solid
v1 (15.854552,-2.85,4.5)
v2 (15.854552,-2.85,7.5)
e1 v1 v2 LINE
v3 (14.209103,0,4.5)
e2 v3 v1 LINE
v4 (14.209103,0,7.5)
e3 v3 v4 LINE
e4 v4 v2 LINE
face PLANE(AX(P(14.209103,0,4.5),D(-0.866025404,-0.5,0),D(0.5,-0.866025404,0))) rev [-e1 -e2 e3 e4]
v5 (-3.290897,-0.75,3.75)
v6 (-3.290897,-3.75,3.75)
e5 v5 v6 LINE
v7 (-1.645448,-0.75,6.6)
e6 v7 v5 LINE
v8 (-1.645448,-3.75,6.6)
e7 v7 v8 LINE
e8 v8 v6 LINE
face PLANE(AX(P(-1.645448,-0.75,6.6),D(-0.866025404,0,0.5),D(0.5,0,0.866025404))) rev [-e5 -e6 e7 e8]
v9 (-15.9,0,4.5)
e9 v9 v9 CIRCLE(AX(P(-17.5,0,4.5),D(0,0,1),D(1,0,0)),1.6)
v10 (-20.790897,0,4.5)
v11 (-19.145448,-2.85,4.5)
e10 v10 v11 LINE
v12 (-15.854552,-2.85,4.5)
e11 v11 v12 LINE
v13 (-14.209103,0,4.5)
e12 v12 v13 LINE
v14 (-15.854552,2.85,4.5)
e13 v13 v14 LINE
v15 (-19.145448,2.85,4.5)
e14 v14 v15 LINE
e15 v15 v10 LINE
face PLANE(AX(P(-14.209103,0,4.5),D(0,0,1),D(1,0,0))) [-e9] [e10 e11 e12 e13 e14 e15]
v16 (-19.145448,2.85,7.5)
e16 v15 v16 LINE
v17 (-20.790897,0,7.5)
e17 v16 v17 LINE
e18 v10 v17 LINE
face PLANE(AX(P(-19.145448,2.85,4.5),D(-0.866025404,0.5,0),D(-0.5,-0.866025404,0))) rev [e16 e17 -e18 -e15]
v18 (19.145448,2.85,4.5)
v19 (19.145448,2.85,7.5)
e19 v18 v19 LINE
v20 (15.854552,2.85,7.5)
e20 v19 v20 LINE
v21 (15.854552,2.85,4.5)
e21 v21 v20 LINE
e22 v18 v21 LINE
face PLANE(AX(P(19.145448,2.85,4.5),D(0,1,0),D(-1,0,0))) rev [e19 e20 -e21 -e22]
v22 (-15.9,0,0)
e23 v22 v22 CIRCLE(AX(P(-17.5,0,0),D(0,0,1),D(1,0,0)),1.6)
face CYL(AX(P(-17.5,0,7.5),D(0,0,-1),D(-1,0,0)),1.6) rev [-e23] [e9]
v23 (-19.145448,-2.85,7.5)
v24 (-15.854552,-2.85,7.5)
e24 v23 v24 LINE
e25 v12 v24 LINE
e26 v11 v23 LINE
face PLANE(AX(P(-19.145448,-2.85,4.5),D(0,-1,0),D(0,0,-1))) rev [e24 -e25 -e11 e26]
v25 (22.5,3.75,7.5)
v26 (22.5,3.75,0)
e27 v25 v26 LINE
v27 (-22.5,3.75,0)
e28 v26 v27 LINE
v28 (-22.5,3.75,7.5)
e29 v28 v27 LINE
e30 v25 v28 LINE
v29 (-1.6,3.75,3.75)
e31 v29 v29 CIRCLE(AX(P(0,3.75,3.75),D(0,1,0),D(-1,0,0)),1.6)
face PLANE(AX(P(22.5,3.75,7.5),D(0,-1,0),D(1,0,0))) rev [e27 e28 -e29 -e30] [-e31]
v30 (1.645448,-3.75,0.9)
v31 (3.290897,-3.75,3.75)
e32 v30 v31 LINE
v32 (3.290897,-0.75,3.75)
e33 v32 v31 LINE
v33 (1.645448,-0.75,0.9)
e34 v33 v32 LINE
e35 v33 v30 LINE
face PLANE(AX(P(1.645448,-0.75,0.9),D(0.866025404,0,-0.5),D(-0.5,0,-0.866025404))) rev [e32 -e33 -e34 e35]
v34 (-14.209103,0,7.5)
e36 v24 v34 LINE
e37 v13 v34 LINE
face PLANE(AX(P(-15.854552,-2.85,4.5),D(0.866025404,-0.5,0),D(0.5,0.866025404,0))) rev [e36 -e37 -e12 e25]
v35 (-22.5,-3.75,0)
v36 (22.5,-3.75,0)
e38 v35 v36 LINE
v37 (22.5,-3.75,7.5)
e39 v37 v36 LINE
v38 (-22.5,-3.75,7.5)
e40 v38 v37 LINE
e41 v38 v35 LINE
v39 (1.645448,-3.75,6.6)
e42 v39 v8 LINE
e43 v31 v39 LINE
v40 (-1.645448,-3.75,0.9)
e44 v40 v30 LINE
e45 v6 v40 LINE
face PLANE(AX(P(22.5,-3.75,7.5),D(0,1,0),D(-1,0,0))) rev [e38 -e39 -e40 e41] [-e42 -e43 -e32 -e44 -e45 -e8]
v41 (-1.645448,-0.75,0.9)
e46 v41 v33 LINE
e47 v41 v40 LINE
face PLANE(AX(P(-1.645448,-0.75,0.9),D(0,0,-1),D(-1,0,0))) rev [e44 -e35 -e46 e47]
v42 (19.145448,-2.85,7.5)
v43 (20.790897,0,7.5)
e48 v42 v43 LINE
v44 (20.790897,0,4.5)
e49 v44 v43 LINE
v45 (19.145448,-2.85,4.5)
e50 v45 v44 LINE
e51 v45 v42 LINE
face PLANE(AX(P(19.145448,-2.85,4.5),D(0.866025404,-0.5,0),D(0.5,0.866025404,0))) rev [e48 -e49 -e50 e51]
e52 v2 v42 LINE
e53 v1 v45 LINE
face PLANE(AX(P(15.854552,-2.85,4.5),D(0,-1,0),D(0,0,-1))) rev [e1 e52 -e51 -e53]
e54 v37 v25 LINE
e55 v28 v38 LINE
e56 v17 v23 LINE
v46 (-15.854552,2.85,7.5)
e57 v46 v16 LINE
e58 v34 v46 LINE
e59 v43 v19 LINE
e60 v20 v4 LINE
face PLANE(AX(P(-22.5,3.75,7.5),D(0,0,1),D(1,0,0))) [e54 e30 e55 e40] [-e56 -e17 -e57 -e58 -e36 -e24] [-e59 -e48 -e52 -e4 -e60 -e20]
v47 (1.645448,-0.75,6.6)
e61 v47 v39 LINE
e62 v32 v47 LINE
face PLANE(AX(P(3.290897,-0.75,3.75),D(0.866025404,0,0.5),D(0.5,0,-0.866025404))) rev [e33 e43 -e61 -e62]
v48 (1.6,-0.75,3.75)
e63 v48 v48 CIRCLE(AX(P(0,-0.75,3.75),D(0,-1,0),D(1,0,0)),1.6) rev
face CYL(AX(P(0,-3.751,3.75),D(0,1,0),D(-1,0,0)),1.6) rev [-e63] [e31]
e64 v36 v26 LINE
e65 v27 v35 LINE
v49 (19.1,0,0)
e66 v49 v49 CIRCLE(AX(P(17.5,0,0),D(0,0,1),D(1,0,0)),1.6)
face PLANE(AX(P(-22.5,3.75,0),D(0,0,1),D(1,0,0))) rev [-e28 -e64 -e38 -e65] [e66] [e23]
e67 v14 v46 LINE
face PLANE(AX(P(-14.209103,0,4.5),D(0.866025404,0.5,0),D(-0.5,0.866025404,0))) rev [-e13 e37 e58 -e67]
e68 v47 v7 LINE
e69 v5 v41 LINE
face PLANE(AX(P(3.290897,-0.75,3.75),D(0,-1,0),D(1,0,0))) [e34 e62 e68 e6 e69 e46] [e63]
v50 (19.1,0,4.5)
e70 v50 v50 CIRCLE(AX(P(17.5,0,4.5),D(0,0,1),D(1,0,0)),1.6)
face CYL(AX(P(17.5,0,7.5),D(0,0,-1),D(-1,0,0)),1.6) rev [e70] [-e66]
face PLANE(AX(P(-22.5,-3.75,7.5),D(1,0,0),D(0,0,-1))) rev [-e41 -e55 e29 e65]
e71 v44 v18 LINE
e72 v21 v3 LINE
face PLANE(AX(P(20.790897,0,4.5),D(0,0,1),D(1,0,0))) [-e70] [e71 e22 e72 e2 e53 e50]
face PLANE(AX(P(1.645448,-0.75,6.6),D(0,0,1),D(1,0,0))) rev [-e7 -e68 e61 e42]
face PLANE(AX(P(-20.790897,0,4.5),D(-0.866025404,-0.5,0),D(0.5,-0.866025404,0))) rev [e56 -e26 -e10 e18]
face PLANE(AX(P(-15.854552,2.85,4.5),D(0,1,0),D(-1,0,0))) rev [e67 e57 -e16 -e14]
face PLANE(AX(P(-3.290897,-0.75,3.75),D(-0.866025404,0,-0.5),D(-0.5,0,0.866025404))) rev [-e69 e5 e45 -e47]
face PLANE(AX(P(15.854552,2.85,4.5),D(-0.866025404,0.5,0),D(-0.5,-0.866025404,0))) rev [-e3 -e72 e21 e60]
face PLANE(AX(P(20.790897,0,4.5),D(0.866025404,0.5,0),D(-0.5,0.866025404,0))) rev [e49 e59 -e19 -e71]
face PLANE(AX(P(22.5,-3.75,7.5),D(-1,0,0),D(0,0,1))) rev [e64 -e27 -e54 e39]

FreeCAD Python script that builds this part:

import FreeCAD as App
import Part
import Sketcher
Q = App.Units.Quantity


def add_polygon(sketch, points):
    """Adds a closed chain of lines whose ends are joined by coincident constraints."""
    first, n = sketch.GeometryCount, len(points)
    for a, b in zip(points, points[1:] + points[:1]):
        sketch.addGeometry(Part.LineSegment(App.Vector(*a, 0), App.Vector(*b, 0)), False)
    for i in range(n):
        sketch.addConstraint(Sketcher.Constraint("Coincident", first + i, 2, first + (i + 1) % n, 1))

doc = App.newDocument("Part")
params = doc.addObject("Spreadsheet::Sheet", "Params")
for row, (alias, value) in enumerate([
    ("sketch1_diameter", "3.2 mm"),
    ("sketch1_width", "45 mm"),
    ("sketch1_height", "7.5 mm"),
    ("pad1_length", "7.5 mm"),
    ("sketch2_diameter", "3.2 mm"),
    ("pocket2_length", "3 mm"),
    ("pocket3_length", "3 mm"),
], start=1):
    params.set(f"A{row}", alias)
    params.set(f"B{row}", "=" + value)
    params.setAlias(f"B{row}", alias)

body = doc.addObject("PartDesign::Body", "Body")

# Sketch on XY plane
sketch1 = doc.addObject("Sketcher::SketchObject", "Sketch")
body.addObject(sketch1)
sketch1.AttachmentSupport = (doc.XY_Plane, [""])
sketch1.MapMode = "FlatFace"
add_polygon(sketch1, [(-22.5, 3.8), (-22.5, -3.8), (22.5, -3.8), (22.5, 3.8)])  # lines 0-3
sketch1.addGeometry(Part.Circle(App.Vector(-17.5, 0, 0), App.Vector(0, 0, 1), 1.6), False)  # 4
sketch1.addGeometry(Part.Circle(App.Vector(17.5, 0, 0), App.Vector(0, 0, 1), 1.6), False)  # 5
sketch1.addConstraint(Sketcher.Constraint("Vertical", 0))
sketch1.addConstraint(Sketcher.Constraint("Horizontal", 1))
sketch1.addConstraint(Sketcher.Constraint("Vertical", 2))
sketch1.addConstraint(Sketcher.Constraint("Horizontal", 3))
sketch1.addConstraint(Sketcher.Constraint("Equal", 4, 5))
sketch1.addConstraint(Sketcher.Constraint("Symmetric", 4, 3, 5, 3, -1, 1))
sketch1.addConstraint(Sketcher.Constraint("Symmetric", 0, 2, 2, 2, -1, 1))
sketch1.addConstraint(Sketcher.Constraint("PointOnObject", 4, 3, -1))
sketch1.addConstraint(Sketcher.Constraint("Diameter", 4, Q("3.2 mm")))
sketch1.addConstraint(Sketcher.Constraint("DistanceX", 1, 1, 1, 2, Q("45 mm")))
sketch1.addConstraint(Sketcher.Constraint("DistanceY", 0, 2, 0, 1, Q("7.5 mm")))
sketch1.addConstraint(Sketcher.Constraint("DistanceX", 4, 3, 5, 3, Q("35 mm")))
sketch1.setExpression("Constraints[12]", "Params.sketch1_diameter")
sketch1.setExpression("Constraints[13]", "Params.sketch1_width")
sketch1.setExpression("Constraints[14]", "Params.sketch1_height")
pad1 = doc.addObject("PartDesign::Pad", "Pad")
body.addObject(pad1)
pad1.Profile = sketch1
pad1.setExpression("Length", "Params.pad1_length")

# Sketch on XZ plane
sketch2 = doc.addObject("Sketcher::SketchObject", "Sketch001")
body.addObject(sketch2)
sketch2.AttachmentSupport = (doc.XZ_Plane, [""])
sketch2.MapMode = "FlatFace"
sketch2.AttachmentOffset = App.Placement(App.Vector(0, 0, -3.75), App.Rotation())
sketch2.addGeometry(Part.Circle(App.Vector(0, 3.8, 0), App.Vector(0, 0, 1), 1.6), False)
sketch2.addConstraint(Sketcher.Constraint("PointOnObject", 0, 3, -2))
sketch2.addConstraint(Sketcher.Constraint("Diameter", 0, Q("3.2 mm")))
sketch2.addConstraint(Sketcher.Constraint("DistanceY", -1, 1, 0, 3, Q("3.75 mm")))
sketch2.setExpression("Constraints[1]", "Params.sketch2_diameter")
pocket1 = doc.addObject("PartDesign::Pocket", "Pocket")
body.addObject(pocket1)
pocket1.Profile = sketch2
pocket1.Type = "UpToFirst"
pocket1.Reversed = True

# Sketch on XZ plane
sketch3 = doc.addObject("Sketcher::SketchObject", "Sketch002")
body.addObject(sketch3)
sketch3.AttachmentSupport = (doc.XZ_Plane, [""])
sketch3.MapMode = "FlatFace"
sketch3.AttachmentOffset = App.Placement(App.Vector(0, 0, 3.75), App.Rotation())
add_polygon(sketch3, [(3.3, 3.8), (1.6, 6.6), (-1.6, 6.6), (-3.3, 3.8), (-1.6, 0.9), (1.6, 0.9)])  # lines 0-5
sketch3.addConstraint(Sketcher.Constraint("Horizontal", 1))
sketch3.addConstraint(Sketcher.Constraint("Horizontal", 4))
sketch3.addConstraint(Sketcher.Constraint("Symmetric", 2, 2, 5, 2, -2))
sketch3.addConstraint(Sketcher.Constraint("Parallel", 0, 3))
sketch3.addConstraint(Sketcher.Constraint("Parallel", 2, 5))
sketch3.addConstraint(Sketcher.Constraint("Vertical", 1, 2, 3, 2))
sketch3.addConstraint(Sketcher.Constraint("Vertical", 0, 2, 4, 2))
sketch3.addConstraint(Sketcher.Constraint("Angle", 0, Q("120 deg")))
sketch3.addConstraint(Sketcher.Constraint("DistanceY", -1, 1, 0, 2, Q("6.6 mm")))
sketch3.addConstraint(Sketcher.Constraint("DistanceY", -1, 1, 3, 2, Q("0.9 mm")))
sketch3.addConstraint(Sketcher.Constraint("DistanceX", 1, 2, 1, 1, Q("3.290897 mm")))
pocket2 = doc.addObject("PartDesign::Pocket", "Pocket001")
body.addObject(pocket2)
pocket2.Profile = sketch3
pocket2.setExpression("Length", "Params.pocket2_length")

# Sketch on XY plane
sketch4 = doc.addObject("Sketcher::SketchObject", "Sketch003")
body.addObject(sketch4)
sketch4.AttachmentSupport = (doc.XY_Plane, [""])
sketch4.MapMode = "FlatFace"
sketch4.AttachmentOffset = App.Placement(App.Vector(0, 0, 7.5), App.Rotation())
add_polygon(sketch4, [(-14.2, 0), (-15.9, 2.9), (-19.1, 2.9), (-20.8, 0), (-19.1, -2.9), (-15.9, -2.9)])  # lines 0-5
add_polygon(sketch4, [(20.8, 0), (19.1, 2.9), (15.9, 2.9), (14.2, 0), (15.9, -2.9), (19.1, -2.9)])  # lines 6-11
sketch4.addConstraint(Sketcher.Constraint("Horizontal", 1))
sketch4.addConstraint(Sketcher.Constraint("Horizontal", 4))
sketch4.addConstraint(Sketcher.Constraint("Horizontal", 7))
sketch4.addConstraint(Sketcher.Constraint("Horizontal", 10))
sketch4.addConstraint(Sketcher.Constraint("Symmetric", 3, 2, 6, 2, -1, 1))
sketch4.addConstraint(Sketcher.Constraint("Symmetric", 5, 2, 8, 2, -1, 1))
sketch4.addConstraint(Sketcher.Constraint("Symmetric", 0, 2, 9, 2, -1, 1))
sketch4.addConstraint(Sketcher.Constraint("Symmetric", 2, 2, 11, 2, -1, 1))
sketch4.addConstraint(Sketcher.Constraint("Symmetric", 1, 2, 6, 2, -2))
sketch4.addConstraint(Sketcher.Constraint("PointOnObject", 2, 2, -1))
sketch4.addConstraint(Sketcher.Constraint("PointOnObject", 5, 2, -1))
sketch4.addConstraint(Sketcher.Constraint("Parallel", 0, 3))
sketch4.addConstraint(Sketcher.Constraint("Parallel", 2, 5))
sketch4.addConstraint(Sketcher.Constraint("Parallel", 5, 8))
sketch4.addConstraint(Sketcher.Constraint("Parallel", 8, 11))
sketch4.addConstraint(Sketcher.Constraint("Angle", 0, Q("120 deg")))
sketch4.addConstraint(Sketcher.Constraint("DistanceX", 0, 2, 6, 2, Q("35 mm")))
sketch4.addConstraint(Sketcher.Constraint("DistanceY", 3, 2, 1, 2, Q("5.7 mm")))
sketch4.addConstraint(Sketcher.Constraint("DistanceX", 1, 2, 1, 1, Q("3.290897 mm")))
pocket3 = doc.addObject("PartDesign::Pocket", "Pocket002")
body.addObject(pocket3)
pocket3.Profile = sketch4
pocket3.setExpression("Length", "Params.pocket3_length")

doc.recompute()
